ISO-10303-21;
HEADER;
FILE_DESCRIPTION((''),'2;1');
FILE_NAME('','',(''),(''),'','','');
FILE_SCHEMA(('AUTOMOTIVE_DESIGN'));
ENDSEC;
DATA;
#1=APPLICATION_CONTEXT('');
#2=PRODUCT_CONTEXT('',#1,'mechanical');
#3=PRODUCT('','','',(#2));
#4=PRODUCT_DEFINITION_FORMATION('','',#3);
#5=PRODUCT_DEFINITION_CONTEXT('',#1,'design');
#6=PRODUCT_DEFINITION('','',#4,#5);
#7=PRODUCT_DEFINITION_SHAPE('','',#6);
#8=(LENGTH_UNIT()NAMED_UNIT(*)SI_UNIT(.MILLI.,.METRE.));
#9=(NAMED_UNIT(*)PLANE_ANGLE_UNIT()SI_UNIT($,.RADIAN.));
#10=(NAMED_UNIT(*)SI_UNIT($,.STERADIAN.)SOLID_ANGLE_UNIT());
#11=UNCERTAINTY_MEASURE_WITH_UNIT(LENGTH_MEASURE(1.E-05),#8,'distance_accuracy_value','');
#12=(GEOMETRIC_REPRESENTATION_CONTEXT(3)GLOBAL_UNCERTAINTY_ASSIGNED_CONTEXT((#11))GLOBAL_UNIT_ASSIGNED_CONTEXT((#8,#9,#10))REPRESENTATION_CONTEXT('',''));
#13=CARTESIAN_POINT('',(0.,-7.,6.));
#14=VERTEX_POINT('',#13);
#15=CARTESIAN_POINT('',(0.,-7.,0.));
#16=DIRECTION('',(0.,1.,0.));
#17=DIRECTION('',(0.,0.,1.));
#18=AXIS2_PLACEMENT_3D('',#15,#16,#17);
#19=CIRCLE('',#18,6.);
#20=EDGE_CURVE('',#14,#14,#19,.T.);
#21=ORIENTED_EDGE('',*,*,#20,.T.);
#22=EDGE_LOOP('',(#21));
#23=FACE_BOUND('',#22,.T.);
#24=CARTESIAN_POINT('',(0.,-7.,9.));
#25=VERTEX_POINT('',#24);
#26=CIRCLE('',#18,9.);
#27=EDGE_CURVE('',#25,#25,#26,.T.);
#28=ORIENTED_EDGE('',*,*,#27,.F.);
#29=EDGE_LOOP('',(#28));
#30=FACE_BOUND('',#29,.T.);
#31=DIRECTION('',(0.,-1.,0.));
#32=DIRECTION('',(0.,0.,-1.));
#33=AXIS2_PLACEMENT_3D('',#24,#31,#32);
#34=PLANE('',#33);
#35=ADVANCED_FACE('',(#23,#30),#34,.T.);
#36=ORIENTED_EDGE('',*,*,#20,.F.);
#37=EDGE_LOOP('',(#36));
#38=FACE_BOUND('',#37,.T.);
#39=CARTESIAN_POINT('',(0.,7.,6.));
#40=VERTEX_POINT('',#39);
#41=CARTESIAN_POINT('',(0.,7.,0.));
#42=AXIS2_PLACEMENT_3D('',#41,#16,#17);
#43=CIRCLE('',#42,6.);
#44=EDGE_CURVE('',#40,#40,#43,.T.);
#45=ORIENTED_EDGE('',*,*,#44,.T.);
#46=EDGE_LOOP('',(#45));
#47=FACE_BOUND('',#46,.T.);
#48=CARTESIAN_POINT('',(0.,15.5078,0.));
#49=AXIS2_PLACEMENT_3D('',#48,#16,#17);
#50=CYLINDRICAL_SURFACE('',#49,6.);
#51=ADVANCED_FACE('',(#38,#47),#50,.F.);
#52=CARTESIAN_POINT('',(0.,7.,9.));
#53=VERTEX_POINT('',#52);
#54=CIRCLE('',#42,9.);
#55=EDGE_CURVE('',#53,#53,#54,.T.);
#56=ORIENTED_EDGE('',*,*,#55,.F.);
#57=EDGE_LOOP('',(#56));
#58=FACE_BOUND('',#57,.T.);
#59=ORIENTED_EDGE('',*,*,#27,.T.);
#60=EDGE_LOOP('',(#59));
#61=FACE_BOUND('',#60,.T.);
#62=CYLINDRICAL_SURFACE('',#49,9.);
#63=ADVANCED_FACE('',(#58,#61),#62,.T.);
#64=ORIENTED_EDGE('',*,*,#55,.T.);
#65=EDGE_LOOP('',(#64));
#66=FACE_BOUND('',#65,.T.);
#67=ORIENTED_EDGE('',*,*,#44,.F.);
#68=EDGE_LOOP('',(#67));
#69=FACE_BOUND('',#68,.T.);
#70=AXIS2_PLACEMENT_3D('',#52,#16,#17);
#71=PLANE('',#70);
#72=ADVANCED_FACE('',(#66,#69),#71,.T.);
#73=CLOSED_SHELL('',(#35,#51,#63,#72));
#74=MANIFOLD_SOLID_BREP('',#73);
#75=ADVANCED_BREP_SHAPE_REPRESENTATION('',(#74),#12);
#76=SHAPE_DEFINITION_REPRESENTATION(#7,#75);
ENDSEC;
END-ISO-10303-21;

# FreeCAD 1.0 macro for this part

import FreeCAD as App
import Part
import Sketcher

doc = App.newDocument("Part")
params = doc.addObject("Spreadsheet::Sheet", "Params")
for row, (alias, value) in enumerate([
    ("sketch1_width", "14 mm"),
    ("sketch1_height", "3 mm"),
    ("revolution_angle", "360 deg"),
], start=1):
    params.set(f"A{row}", alias)
    params.set(f"B{row}", "=" + value)
    params.setAlias(f"B{row}", alias)

body = doc.addObject("PartDesign::Body", "Body")

# Sketch on YZ plane
sketch1 = doc.addObject("Sketcher::SketchObject", "Sketch")
body.addObject(sketch1)
sketch1.AttachmentSupport = (doc.YZ_Plane, [""])
sketch1.MapMode = "FlatFace"
sketch1.addGeometry([
    Part.LineSegment(App.Vector(7, 9, 0), App.Vector(-7, 9, 0)),
    Part.LineSegment(App.Vector(-7, 9, 0), App.Vector(-7, 6, 0)),
    Part.LineSegment(App.Vector(-7, 6, 0), App.Vector(7, 6, 0)),
    Part.LineSegment(App.Vector(7, 6, 0), App.Vector(7, 9, 0)),
], False)
sketch1.addConstraint([
    Sketcher.Constraint("Coincident", 0, 2, 1, 1),
    Sketcher.Constraint("Coincident", 1, 2, 2, 1),
    Sketcher.Constraint("Coincident", 2, 2, 3, 1),
    Sketcher.Constraint("Coincident", 3, 2, 0, 1),
    Sketcher.Constraint("Horizontal", 0),
    Sketcher.Constraint("Vertical", 1),
    Sketcher.Constraint("Horizontal", 2),
    Sketcher.Constraint("Vertical", 3),
    Sketcher.Constraint("DistanceX", 0, 2, 0, 1, 14.0),
    Sketcher.Constraint("DistanceY", 1, 2, 1, 1, 3.0),
    Sketcher.Constraint("DistanceX", 0, 2, -1, 1, 7.0),
    Sketcher.Constraint("DistanceY", -1, 1, 0, 2, 9.0),
])
sketch1.setExpression("Constraints[8]", "Params.sketch1_width")
sketch1.setExpression("Constraints[9]", "Params.sketch1_height")
revolution = doc.addObject("PartDesign::Revolution", "Revolution")
body.addObject(revolution)
revolution.Profile = sketch1
revolution.ReferenceAxis = (sketch1, ["H_Axis"])
revolution.setExpression("Angle", "Params.revolution_angle")

doc.recompute()
